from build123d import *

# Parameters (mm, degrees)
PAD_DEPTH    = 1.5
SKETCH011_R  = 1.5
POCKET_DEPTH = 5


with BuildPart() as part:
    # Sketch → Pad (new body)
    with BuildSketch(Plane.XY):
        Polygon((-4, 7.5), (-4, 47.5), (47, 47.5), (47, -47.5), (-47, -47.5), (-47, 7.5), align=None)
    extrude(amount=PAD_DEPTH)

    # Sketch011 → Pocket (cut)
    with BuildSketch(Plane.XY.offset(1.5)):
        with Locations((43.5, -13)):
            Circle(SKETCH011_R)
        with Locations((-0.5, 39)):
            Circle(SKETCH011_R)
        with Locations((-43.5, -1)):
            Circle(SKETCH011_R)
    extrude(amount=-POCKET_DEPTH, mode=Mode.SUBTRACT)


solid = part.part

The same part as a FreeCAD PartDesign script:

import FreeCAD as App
import Part
import Sketcher
Q = App.Units.Quantity

doc = App.newDocument("Part")
body = doc.addObject("PartDesign::Body", "Body")

sketch1 = doc.addObject("Sketcher::SketchObject", "Sketch")
body.addObject(sketch1)
sketch1.AttachmentSupport = (doc.XY_Plane, [""])
sketch1.MapMode = "FlatFace"
sketch1.addGeometry(Part.LineSegment(App.Vector(-4, 48, 0), App.Vector(-4, 8, 0)), False)
sketch1.addGeometry(Part.LineSegment(App.Vector(-4, 8, 0), App.Vector(-47, 8, 0)), False)
sketch1.addGeometry(Part.LineSegment(App.Vector(-47, 8, 0), App.Vector(-47, -48, 0)), False)
sketch1.addGeometry(Part.LineSegment(App.Vector(-47, -48, 0), App.Vector(47, -48, 0)), False)
sketch1.addGeometry(Part.LineSegment(App.Vector(47, -48, 0), App.Vector(47, 48, 0)), False)
sketch1.addGeometry(Part.LineSegment(App.Vector(47, 48, 0), App.Vector(-4, 48, 0)), False)
sketch1.addConstraint(Sketcher.Constraint("Coincident", 0, 2, 1, 1))
sketch1.addConstraint(Sketcher.Constraint("Coincident", 1, 2, 2, 1))
sketch1.addConstraint(Sketcher.Constraint("Coincident", 2, 2, 3, 1))
sketch1.addConstraint(Sketcher.Constraint("Coincident", 3, 2, 4, 1))
sketch1.addConstraint(Sketcher.Constraint("Coincident", 4, 2, 5, 1))
sketch1.addConstraint(Sketcher.Constraint("Coincident", 5, 2, 0, 1))
sketch1.addConstraint(Sketcher.Constraint("Vertical", 0))
sketch1.addConstraint(Sketcher.Constraint("Horizontal", 1))
sketch1.addConstraint(Sketcher.Constraint("Vertical", 2))
sketch1.addConstraint(Sketcher.Constraint("Horizontal", 3))
sketch1.addConstraint(Sketcher.Constraint("Vertical", 4))
sketch1.addConstraint(Sketcher.Constraint("Horizontal", 5))
sketch1.addConstraint(Sketcher.Constraint("Symmetric", 2, 2, 4, 2, -1, 1))
sketch1.addConstraint(Sketcher.Constraint("DistanceX", 1, 2, 1, 1, Q("43 mm")))
sketch1.addConstraint(Sketcher.Constraint("DistanceX", 3, 1, 3, 2, Q("94 mm")))
sketch1.addConstraint(Sketcher.Constraint("DistanceY", 0, 2, 0, 1, Q("40 mm")))
sketch1.addConstraint(Sketcher.Constraint("DistanceY", 2, 2, 2, 1, Q("55 mm")))
pad1 = doc.addObject("PartDesign::Pad", "Pad")
body.addObject(pad1)
pad1.Profile = sketch1
pad1.Length = 1.5

sketch2 = doc.addObject("Sketcher::SketchObject", "Sketch001")
body.addObject(sketch2)
sketch2.AttachmentSupport = (doc.XY_Plane, [""])
sketch2.MapMode = "FlatFace"
sketch2.AttachmentOffset = App.Placement(App.Vector(0, 0, 1.5), App.Rotation())
sketch2.addGeometry(Part.Circle(App.Vector(43.5, -13, 0), App.Vector(0, 0, 1), 1.5), False)
sketch2.addGeometry(Part.Circle(App.Vector(-0.5, 39, 0), App.Vector(0, 0, 1), 1.5), False)
sketch2.addGeometry(Part.Circle(App.Vector(-43.5, -1, 0), App.Vector(0, 0, 1), 1.5), False)
sketch2.addConstraint(Sketcher.Constraint("Equal", 0, 1))
sketch2.addConstraint(Sketcher.Constraint("Equal", 1, 2))
sketch2.addConstraint(Sketcher.Constraint("Diameter", 0, Q("3 mm")))
sketch2.addConstraint(Sketcher.Constraint("DistanceY", 0, 3, -1, 1, Q("13 mm")))
sketch2.addConstraint(Sketcher.Constraint("DistanceY", -1, 1, 1, 3, Q("39 mm")))
sketch2.addConstraint(Sketcher.Constraint("DistanceY", 2, 3, -1, 1, Q("1 mm")))
sketch2.addConstraint(Sketcher.Constraint("DistanceX", 1, 3, 0, 3, Q("44 mm")))
sketch2.addConstraint(Sketcher.Constraint("DistanceX", 2, 3, 1, 3, Q("43 mm")))
sketch2.addConstraint(Sketcher.Constraint("DistanceX", -1, 1, 0, 3, Q("43.5 mm")))
pocket1 = doc.addObject("PartDesign::Pocket", "Pocket")
body.addObject(pocket1)
pocket1.Profile = sketch2
pocket1.Length = 5

doc.recompute()
